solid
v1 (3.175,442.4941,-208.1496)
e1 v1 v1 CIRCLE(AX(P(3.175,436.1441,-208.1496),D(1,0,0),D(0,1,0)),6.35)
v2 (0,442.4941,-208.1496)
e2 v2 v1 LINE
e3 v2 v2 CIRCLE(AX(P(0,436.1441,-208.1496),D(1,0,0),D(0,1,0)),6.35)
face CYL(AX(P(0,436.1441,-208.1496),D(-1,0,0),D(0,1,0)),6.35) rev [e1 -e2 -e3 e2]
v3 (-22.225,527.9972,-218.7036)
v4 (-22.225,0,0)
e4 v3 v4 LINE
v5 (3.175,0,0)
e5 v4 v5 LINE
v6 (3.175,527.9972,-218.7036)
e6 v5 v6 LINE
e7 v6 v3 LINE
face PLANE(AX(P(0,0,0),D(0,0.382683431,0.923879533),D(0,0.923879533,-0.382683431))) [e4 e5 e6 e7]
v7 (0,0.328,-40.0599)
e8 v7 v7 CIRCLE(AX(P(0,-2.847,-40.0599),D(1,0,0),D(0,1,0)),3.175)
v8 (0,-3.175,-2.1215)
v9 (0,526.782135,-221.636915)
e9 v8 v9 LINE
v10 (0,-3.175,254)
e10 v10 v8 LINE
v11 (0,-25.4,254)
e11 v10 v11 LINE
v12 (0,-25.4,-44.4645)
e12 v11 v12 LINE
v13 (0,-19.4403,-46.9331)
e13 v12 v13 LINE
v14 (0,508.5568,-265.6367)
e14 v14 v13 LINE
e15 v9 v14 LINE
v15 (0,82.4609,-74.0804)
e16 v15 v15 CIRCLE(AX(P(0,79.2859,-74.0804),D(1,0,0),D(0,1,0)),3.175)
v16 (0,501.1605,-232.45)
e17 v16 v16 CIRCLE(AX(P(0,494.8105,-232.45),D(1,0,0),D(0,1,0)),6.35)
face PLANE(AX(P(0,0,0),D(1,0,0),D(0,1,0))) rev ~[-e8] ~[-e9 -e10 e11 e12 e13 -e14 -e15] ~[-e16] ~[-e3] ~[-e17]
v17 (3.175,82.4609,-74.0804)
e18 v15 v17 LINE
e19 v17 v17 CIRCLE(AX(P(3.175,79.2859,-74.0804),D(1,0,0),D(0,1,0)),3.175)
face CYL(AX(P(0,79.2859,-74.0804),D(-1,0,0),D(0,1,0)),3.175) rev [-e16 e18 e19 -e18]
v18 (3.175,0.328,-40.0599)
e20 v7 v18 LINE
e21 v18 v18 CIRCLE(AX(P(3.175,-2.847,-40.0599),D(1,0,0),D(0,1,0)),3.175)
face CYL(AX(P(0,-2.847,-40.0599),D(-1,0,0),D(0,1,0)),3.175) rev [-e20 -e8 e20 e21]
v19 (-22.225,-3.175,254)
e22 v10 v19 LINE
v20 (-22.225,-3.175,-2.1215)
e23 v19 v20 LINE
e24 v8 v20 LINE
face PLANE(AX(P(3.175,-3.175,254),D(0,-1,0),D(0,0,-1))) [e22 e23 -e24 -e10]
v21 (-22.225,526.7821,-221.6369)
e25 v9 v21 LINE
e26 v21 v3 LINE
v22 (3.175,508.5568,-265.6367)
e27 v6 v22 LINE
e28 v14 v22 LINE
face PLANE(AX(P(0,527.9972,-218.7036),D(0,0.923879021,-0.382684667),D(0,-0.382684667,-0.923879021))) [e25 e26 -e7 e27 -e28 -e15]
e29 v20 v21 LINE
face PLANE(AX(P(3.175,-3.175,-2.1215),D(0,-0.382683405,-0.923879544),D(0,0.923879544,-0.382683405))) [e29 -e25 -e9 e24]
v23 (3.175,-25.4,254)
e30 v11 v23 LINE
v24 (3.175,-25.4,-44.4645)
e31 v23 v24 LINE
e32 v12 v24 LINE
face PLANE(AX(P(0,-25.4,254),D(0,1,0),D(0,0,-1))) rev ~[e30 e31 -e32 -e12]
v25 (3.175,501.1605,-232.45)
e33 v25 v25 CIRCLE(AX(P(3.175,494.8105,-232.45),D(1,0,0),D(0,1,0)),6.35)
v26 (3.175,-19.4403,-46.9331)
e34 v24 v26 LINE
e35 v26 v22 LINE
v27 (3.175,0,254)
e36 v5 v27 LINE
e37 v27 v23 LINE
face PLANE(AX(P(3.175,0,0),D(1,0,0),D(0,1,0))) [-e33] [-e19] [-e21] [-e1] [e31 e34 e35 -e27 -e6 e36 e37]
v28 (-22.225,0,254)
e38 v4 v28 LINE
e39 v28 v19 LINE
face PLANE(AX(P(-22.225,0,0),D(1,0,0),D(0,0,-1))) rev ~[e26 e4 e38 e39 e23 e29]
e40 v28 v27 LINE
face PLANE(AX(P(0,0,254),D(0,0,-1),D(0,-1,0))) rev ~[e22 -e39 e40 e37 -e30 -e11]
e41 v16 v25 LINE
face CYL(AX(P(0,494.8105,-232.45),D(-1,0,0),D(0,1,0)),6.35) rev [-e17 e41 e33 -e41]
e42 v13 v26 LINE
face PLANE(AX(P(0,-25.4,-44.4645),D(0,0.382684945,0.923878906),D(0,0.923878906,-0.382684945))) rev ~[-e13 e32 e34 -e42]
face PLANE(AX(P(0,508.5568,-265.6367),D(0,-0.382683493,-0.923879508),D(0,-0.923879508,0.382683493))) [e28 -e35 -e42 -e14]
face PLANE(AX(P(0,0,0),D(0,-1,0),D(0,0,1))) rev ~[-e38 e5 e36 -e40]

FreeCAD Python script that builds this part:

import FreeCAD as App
import Part
import Sketcher
Q = App.Units.Quantity


def add_polygon(sketch, points):
    """Adds a closed chain of lines whose ends are joined by coincident constraints."""
    first, n = sketch.GeometryCount, len(points)
    for a, b in zip(points, points[1:] + points[:1]):
        sketch.addGeometry(Part.LineSegment(App.Vector(*a, 0), App.Vector(*b, 0)), False)
    for i in range(n):
        sketch.addConstraint(Sketcher.Constraint("Coincident", first + i, 2, first + (i + 1) % n, 1))

doc = App.newDocument("Part")
body = doc.addObject("PartDesign::Body", "Body")

sketch1 = doc.addObject("Sketcher::SketchObject", "Sketch")
body.addObject(sketch1)
sketch1.AttachmentSupport = (doc.YZ_Plane, [""])
sketch1.MapMode = "FlatFace"
add_polygon(sketch1, [(527.9972, -218.7036), (0, 0), (0, 254), (-25.4, 254), (-25.4, -44.4645), (-19.4403, -46.9331), (508.5568, -265.6367)])
sketch1.addGeometry(Part.Circle(App.Vector(79.2859, -74.0804, 0), App.Vector(0, 0, 1), 3.175), False)
sketch1.addGeometry(Part.Circle(App.Vector(-2.847, -40.0599, 0), App.Vector(0, 0, 1), 3.175), False)
sketch1.addGeometry(Part.Circle(App.Vector(436.1441, -208.1496, 0), App.Vector(0, 0, 1), 6.35), False)
sketch1.addGeometry(Part.Circle(App.Vector(494.8105, -232.45, 0), App.Vector(0, 0, 1), 6.35), False)
sketch1.addConstraint(Sketcher.Constraint("Vertical", 1))
sketch1.addConstraint(Sketcher.Constraint("Horizontal", 2))
sketch1.addConstraint(Sketcher.Constraint("Vertical", 3))
sketch1.addConstraint(Sketcher.Constraint("Coincident", 0, 2, -1, 1))
sketch1.addConstraint(Sketcher.Constraint("Equal", 7, 8))
sketch1.addConstraint(Sketcher.Constraint("Equal", 9, 10))
sketch1.addConstraint(Sketcher.Constraint("Parallel", 0, 4))
sketch1.addConstraint(Sketcher.Constraint("Parallel", 4, 5))
sketch1.addConstraint(Sketcher.Constraint("Perpendicular", 5, 6))
sketch1.addConstraint(Sketcher.Constraint("Equal", 0, 5))
sketch1.addConstraint(Sketcher.Constraint("Diameter", 9, Q("0.5 in")))
sketch1.addConstraint(Sketcher.Constraint("Diameter", 7, Q("0.25 in")))
sketch1.addConstraint(Sketcher.Constraint("DistanceX", 2, 2, 2, 1, Q("1 in")))
sketch1.addConstraint(Sketcher.Constraint("DistanceY", 1, 1, 1, 2, Q("10 in")))
sketch1.addConstraint(Sketcher.Constraint("Distance", 6, Q("2 in")))
sketch1.addConstraint(Sketcher.Constraint("Distance", 0, Q("22.5 in")))
sketch1.addConstraint(Sketcher.Constraint("Angle", 4, Q("-22.5 deg")))
sketch1.addConstraint(Sketcher.Constraint("DistanceX", 8, 3, 5, 2, Q("20.134 in")))
sketch1.addConstraint(Sketcher.Constraint("DistanceX", -1, 1, 7, 3, Q("3.1215 in")))
sketch1.addConstraint(Sketcher.Constraint("DistanceY", 7, 3, 8, 3, Q("1.3394 in")))
sketch1.addConstraint(Sketcher.Constraint("DistanceY", 9, 3, 8, 3, Q("6.6177 in")))
sketch1.addConstraint(Sketcher.Constraint("DistanceX", 9, 3, 10, 3, Q("2.3097 in")))
sketch1.addConstraint(Sketcher.Constraint("DistanceY", 10, 3, 9, 3, Q("0.9567 in")))
sketch1.addConstraint(Sketcher.Constraint("DistanceY", 3, 2, 8, 3, Q("0.1734 in")))
sketch1.addConstraint(Sketcher.Constraint("DistanceX", 10, 3, 5, 2, Q("0.5412 in")))
pad1 = doc.addObject("PartDesign::Pad", "Pad")
body.addObject(pad1)
pad1.Profile = sketch1
pad1.Length = Q("0.125 in")

sketch2 = doc.addObject("Sketcher::SketchObject", "Sketch001")
body.addObject(sketch2)
sketch2.AttachmentSupport = (doc.YZ_Plane, [""])
sketch2.MapMode = "FlatFace"
sketch2.AttachmentOffset = App.Placement(App.Vector(0, 0, 0.125 * 25.4), App.Rotation())
add_polygon(sketch2, [(527.9972, -218.7036), (0, 0), (0, 254), (-3.175, 254), (-3.175, -2.1215), (526.782171, -221.636929)])
sketch2.addConstraint(Sketcher.Constraint("Vertical", 1))
sketch2.addConstraint(Sketcher.Constraint("Horizontal", 2))
sketch2.addConstraint(Sketcher.Constraint("Vertical", 3))
sketch2.addConstraint(Sketcher.Constraint("Coincident", 0, 2, -1, 1))
sketch2.addConstraint(Sketcher.Constraint("Parallel", 0, 4))
sketch2.addConstraint(Sketcher.Constraint("Perpendicular", 4, 5))
sketch2.addConstraint(Sketcher.Constraint("Angle", 4, Q("-22.5 deg")))
sketch2.addConstraint(Sketcher.Constraint("DistanceX", 2, 2, 2, 1, Q("0.125 in")))
sketch2.addConstraint(Sketcher.Constraint("DistanceY", 1, 1, 1, 2, Q("10 in")))
sketch2.addConstraint(Sketcher.Constraint("Distance", 5, Q("0.125 in")))
sketch2.addConstraint(Sketcher.Constraint("Distance", 0, Q("22.5 in")))
pad2 = doc.addObject("PartDesign::Pad", "Pad001")
body.addObject(pad2)
pad2.Profile = sketch2
pad2.Length = Q("1 in")
pad2.Reversed = True

doc.recompute()
